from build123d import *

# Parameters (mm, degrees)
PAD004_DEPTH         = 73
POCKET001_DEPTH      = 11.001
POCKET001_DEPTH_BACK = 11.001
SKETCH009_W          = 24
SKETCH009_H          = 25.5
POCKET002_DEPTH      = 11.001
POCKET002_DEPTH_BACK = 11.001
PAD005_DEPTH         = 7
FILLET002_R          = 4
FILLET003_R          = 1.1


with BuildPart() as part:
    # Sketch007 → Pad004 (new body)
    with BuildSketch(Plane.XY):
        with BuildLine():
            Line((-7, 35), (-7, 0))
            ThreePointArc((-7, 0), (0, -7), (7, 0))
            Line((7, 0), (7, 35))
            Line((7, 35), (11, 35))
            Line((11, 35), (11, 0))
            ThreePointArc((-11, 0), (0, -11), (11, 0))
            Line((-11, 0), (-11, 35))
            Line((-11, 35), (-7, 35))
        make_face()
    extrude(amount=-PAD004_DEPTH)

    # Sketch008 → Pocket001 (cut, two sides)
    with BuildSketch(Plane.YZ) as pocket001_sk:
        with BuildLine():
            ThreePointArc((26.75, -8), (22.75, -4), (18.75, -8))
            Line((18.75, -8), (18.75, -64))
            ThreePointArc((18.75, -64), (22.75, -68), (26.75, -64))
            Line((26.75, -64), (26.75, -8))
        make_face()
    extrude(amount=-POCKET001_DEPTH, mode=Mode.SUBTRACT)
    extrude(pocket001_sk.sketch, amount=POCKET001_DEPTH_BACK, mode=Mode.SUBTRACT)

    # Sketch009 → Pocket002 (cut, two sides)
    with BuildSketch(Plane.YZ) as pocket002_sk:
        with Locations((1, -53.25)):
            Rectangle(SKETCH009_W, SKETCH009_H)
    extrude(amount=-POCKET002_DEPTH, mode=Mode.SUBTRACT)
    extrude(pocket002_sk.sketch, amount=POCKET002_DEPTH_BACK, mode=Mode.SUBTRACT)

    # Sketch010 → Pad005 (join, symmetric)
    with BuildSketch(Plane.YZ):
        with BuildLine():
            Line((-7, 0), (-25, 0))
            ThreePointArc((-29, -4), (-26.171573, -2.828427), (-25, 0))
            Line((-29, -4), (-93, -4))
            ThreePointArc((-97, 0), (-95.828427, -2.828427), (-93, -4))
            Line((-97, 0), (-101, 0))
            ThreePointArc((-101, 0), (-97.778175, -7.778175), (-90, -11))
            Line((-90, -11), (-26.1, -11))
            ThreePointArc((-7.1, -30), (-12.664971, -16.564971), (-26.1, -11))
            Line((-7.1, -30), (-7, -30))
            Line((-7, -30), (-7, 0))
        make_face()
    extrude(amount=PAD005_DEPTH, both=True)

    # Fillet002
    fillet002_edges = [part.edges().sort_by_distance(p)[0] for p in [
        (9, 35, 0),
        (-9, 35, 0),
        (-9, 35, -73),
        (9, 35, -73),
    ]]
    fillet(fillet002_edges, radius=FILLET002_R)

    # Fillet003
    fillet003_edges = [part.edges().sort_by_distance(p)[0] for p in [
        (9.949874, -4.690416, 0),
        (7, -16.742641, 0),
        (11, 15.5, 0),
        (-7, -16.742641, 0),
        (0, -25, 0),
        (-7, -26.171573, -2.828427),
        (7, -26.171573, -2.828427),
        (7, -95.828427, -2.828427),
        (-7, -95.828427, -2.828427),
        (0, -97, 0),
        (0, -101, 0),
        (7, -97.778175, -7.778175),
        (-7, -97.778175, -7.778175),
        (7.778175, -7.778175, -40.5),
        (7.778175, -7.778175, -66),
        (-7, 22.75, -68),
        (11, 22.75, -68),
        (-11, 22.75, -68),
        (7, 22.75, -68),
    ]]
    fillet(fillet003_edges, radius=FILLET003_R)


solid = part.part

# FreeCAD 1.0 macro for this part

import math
import FreeCAD as App
import Part
import Sketcher
Q = App.Units.Quantity


def edges_at(feature, points):
    """Names of the edges that pass closest to the given points."""
    edges = feature.Shape.Edges
    near = lambda p: min(range(len(edges)), key=lambda i: edges[i].distToShape(Part.Vertex(*p))[0])
    return sorted({f"Edge{near(p) + 1}" for p in points})

doc = App.newDocument("Part")
body = doc.addObject("PartDesign::Body", "Body")

# Sketch on XY plane
sketch1 = body.newObject("Sketcher::SketchObject", "Sketch")
sketch1.AttachmentSupport = (doc.getObject("XY_Plane"), [""])
sketch1.MapMode = "FlatFace"
sketch1.addGeometry(Part.LineSegment(App.Vector(-7, 0, 0), App.Vector(-7, 35, 0)), False)
sketch1.addGeometry(Part.LineSegment(App.Vector(-7, 35, 0), App.Vector(-11, 35, 0)), False)
sketch1.addGeometry(Part.LineSegment(App.Vector(-11, 35, 0), App.Vector(-11, 0, 0)), False)
sketch1.addGeometry(Part.ArcOfCircle(Part.Circle(App.Vector(0, 0, 0), App.Vector(0, 0, 1), 11), math.radians(180), math.radians(360)), False)
sketch1.addGeometry(Part.LineSegment(App.Vector(11, 0, 0), App.Vector(11, 35, 0)), False)
sketch1.addGeometry(Part.LineSegment(App.Vector(11, 35, 0), App.Vector(7, 35, 0)), False)
sketch1.addGeometry(Part.LineSegment(App.Vector(7, 35, 0), App.Vector(7, 0, 0)), False)
sketch1.addGeometry(Part.ArcOfCircle(Part.Circle(App.Vector(0, 0, 0), App.Vector(0, 0, 1), 7), math.radians(180), math.radians(360)), False)
sketch1.addConstraint(Sketcher.Constraint("Coincident", 0, 2, 1, 1))
sketch1.addConstraint(Sketcher.Constraint("Coincident", 1, 2, 2, 1))
sketch1.addConstraint(Sketcher.Constraint("Tangent", 2, 2, 3, 1))
sketch1.addConstraint(Sketcher.Constraint("Tangent", 3, 2, 4, 1))
sketch1.addConstraint(Sketcher.Constraint("Coincident", 4, 2, 5, 1))
sketch1.addConstraint(Sketcher.Constraint("Coincident", 5, 2, 6, 1))
sketch1.addConstraint(Sketcher.Constraint("Tangent", 6, 2, 7, 2))
sketch1.addConstraint(Sketcher.Constraint("Tangent", 7, 1, 0, 1))
sketch1.addConstraint(Sketcher.Constraint("Vertical", 0))
sketch1.addConstraint(Sketcher.Constraint("Horizontal", 1))
sketch1.addConstraint(Sketcher.Constraint("Vertical", 2))
sketch1.addConstraint(Sketcher.Constraint("Vertical", 4))
sketch1.addConstraint(Sketcher.Constraint("Horizontal", 5))
sketch1.addConstraint(Sketcher.Constraint("Vertical", 6))
sketch1.addConstraint(Sketcher.Constraint("Coincident", 3, 3, -1, 1))
sketch1.addConstraint(Sketcher.Constraint("Coincident", 7, 3, -1, 1))
sketch1.addConstraint(Sketcher.Constraint("Horizontal", 1, 2, 4, 2))
sketch1.addConstraint(Sketcher.Constraint("Radius", 3, Q("11 mm")))
sketch1.addConstraint(Sketcher.Constraint("Radius", 7, Q("7 mm")))
sketch1.addConstraint(Sketcher.Constraint("DistanceY", 0, 1, 0, 2, Q("35 mm")))
pad1 = body.newObject("PartDesign::Pad", "Pad")
pad1.Profile = sketch1
pad1.Length = 73
pad1.Reversed = True

# Sketch on YZ plane
sketch2 = body.newObject("Sketcher::SketchObject", "Sketch001")
sketch2.AttachmentSupport = (doc.getObject("YZ_Plane"), [""])
sketch2.MapMode = "FlatFace"
sketch2.addGeometry(Part.ArcOfCircle(Part.Circle(App.Vector(22.8, -8, 0), App.Vector(0, 0, 1), 4), math.radians(0), math.radians(180)), False)
sketch2.addGeometry(Part.LineSegment(App.Vector(18.8, -8, 0), App.Vector(18.8, -64, 0)), False)
sketch2.addGeometry(Part.ArcOfCircle(Part.Circle(App.Vector(22.8, -64, 0), App.Vector(0, 0, 1), 4), math.radians(180), math.radians(360)), False)
sketch2.addGeometry(Part.LineSegment(App.Vector(26.8, -64, 0), App.Vector(26.8, -8, 0)), False)
sketch2.addConstraint(Sketcher.Constraint("Tangent", 0, 2, 1, 1))
sketch2.addConstraint(Sketcher.Constraint("Tangent", 1, 2, 2, 1))
sketch2.addConstraint(Sketcher.Constraint("Tangent", 2, 2, 3, 1))
sketch2.addConstraint(Sketcher.Constraint("Tangent", 3, 2, 0, 1))
sketch2.addConstraint(Sketcher.Constraint("Vertical", 1))
sketch2.addConstraint(Sketcher.Constraint("Vertical", 3))
sketch2.addConstraint(Sketcher.Constraint("Radius", 0, Q("4 mm")))
sketch2.addConstraint(Sketcher.Constraint("DistanceY", 1, 2, 1, 1, Q("56 mm")))
sketch2.addConstraint(Sketcher.Constraint("DistanceY", 0, 3, -1, 1, Q("8 mm")))
sketch2.addConstraint(Sketcher.Constraint("DistanceX", -1, 1, 0, 3, Q("22.75 mm")))
pocket1 = body.newObject("PartDesign::Pocket", "Pocket")
pocket1.Profile = sketch2
pocket1.Type = "ThroughAll"
pocket1.Midplane = True

# Sketch on YZ plane
sketch3 = body.newObject("Sketcher::SketchObject", "Sketch002")
sketch3.AttachmentSupport = (doc.getObject("YZ_Plane"), [""])
sketch3.MapMode = "FlatFace"
sketch3.addGeometry(Part.LineSegment(App.Vector(-11, -40, 0), App.Vector(-11, -66, 0)), False)
sketch3.addGeometry(Part.LineSegment(App.Vector(-11, -66, 0), App.Vector(13, -66, 0)), False)
sketch3.addGeometry(Part.LineSegment(App.Vector(13, -66, 0), App.Vector(13, -40, 0)), False)
sketch3.addGeometry(Part.LineSegment(App.Vector(13, -40, 0), App.Vector(-11, -40, 0)), False)
sketch3.addConstraint(Sketcher.Constraint("Coincident", 0, 2, 1, 1))
sketch3.addConstraint(Sketcher.Constraint("Coincident", 1, 2, 2, 1))
sketch3.addConstraint(Sketcher.Constraint("Coincident", 2, 2, 3, 1))
sketch3.addConstraint(Sketcher.Constraint("Coincident", 3, 2, 0, 1))
sketch3.addConstraint(Sketcher.Constraint("Vertical", 0))
sketch3.addConstraint(Sketcher.Constraint("Horizontal", 1))
sketch3.addConstraint(Sketcher.Constraint("Vertical", 2))
sketch3.addConstraint(Sketcher.Constraint("Horizontal", 3))
sketch3.addConstraint(Sketcher.Constraint("DistanceX", 1, 1, 1, 2, Q("24 mm")))
sketch3.addConstraint(Sketcher.Constraint("DistanceY", 0, 2, 0, 1, Q("25.5 mm")))
sketch3.addConstraint(Sketcher.Constraint("DistanceX", 0, 2, -1, 1, Q("11 mm")))
sketch3.addConstraint(Sketcher.Constraint("DistanceY", 0, 2, -1, 1, Q("66 mm")))
pocket2 = body.newObject("PartDesign::Pocket", "Pocket001")
pocket2.Profile = sketch3
pocket2.Type = "ThroughAll"
pocket2.Midplane = True

# Sketch on YZ plane
sketch4 = body.newObject("Sketcher::SketchObject", "Sketch003")
sketch4.AttachmentSupport = (doc.getObject("YZ_Plane"), [""])
sketch4.MapMode = "FlatFace"
sketch4.addGeometry(Part.LineSegment(App.Vector(-7, 0, 0), App.Vector(-25, 0, 0)), False)
sketch4.addGeometry(Part.ArcOfCircle(Part.Circle(App.Vector(-29, 0, 0), App.Vector(0, 0, 1), 4), math.radians(-90), math.radians(0)), False)
sketch4.addGeometry(Part.LineSegment(App.Vector(-29, -4, 0), App.Vector(-93, -4, 0)), False)
sketch4.addGeometry(Part.ArcOfCircle(Part.Circle(App.Vector(-93, 0, 0), App.Vector(0, 0, 1), 4), math.radians(-180), math.radians(-90)), False)
sketch4.addGeometry(Part.LineSegment(App.Vector(-97, 0, 0), App.Vector(-101, 0, 0)), False)
sketch4.addGeometry(Part.ArcOfCircle(Part.Circle(App.Vector(-90, 0, 0), App.Vector(0, 0, 1), 11), math.radians(180), math.radians(270)), False)
sketch4.addGeometry(Part.LineSegment(App.Vector(-90, -11, 0), App.Vector(-26.1, -11, 0)), False)
sketch4.addGeometry(Part.ArcOfCircle(Part.Circle(App.Vector(-26.1, -30, 0), App.Vector(0, 0, 1), 19), math.radians(0), math.radians(90)), False)
sketch4.addGeometry(Part.LineSegment(App.Vector(-7.1, -30, 0), App.Vector(-7, -30, 0)), False)
sketch4.addGeometry(Part.LineSegment(App.Vector(-7, -30, 0), App.Vector(-7, 0, 0)), False)
sketch4.addConstraint(Sketcher.Constraint("Coincident", 0, 2, 1, 2))
sketch4.addConstraint(Sketcher.Constraint("Tangent", 1, 1, 2, 1))
sketch4.addConstraint(Sketcher.Constraint("Tangent", 2, 2, 3, 2))
sketch4.addConstraint(Sketcher.Constraint("Coincident", 3, 1, 4, 1))
sketch4.addConstraint(Sketcher.Constraint("Coincident", 4, 2, 5, 1))
sketch4.addConstraint(Sketcher.Constraint("Tangent", 5, 2, 6, 1))
sketch4.addConstraint(Sketcher.Constraint("Tangent", 6, 2, 7, 2))
sketch4.addConstraint(Sketcher.Constraint("Coincident", 7, 1, 8, 1))
sketch4.addConstraint(Sketcher.Constraint("Coincident", 8, 2, 9, 1))
sketch4.addConstraint(Sketcher.Constraint("Coincident", 9, 2, 0, 1))
sketch4.addConstraint(Sketcher.Constraint("Horizontal", 0))
sketch4.addConstraint(Sketcher.Constraint("Horizontal", 2))
sketch4.addConstraint(Sketcher.Constraint("Horizontal", 4))
sketch4.addConstraint(Sketcher.Constraint("Horizontal", 6))
sketch4.addConstraint(Sketcher.Constraint("Horizontal", 8))
sketch4.addConstraint(Sketcher.Constraint("Vertical", 9))
sketch4.addConstraint(Sketcher.Constraint("Equal", 1, 3))
sketch4.addConstraint(Sketcher.Constraint("PointOnObject", 1, 3, -1))
sketch4.addConstraint(Sketcher.Constraint("PointOnObject", 5, 3, -1))
sketch4.addConstraint(Sketcher.Constraint("PointOnObject", 0, 2, -1))
sketch4.addConstraint(Sketcher.Constraint("PointOnObject", 3, 1, -1))
sketch4.addConstraint(Sketcher.Constraint("Radius", 1, Q("4 mm")))
sketch4.addConstraint(Sketcher.Constraint("Radius", 5, Q("10.999999 mm")))
sketch4.addConstraint(Sketcher.Constraint("Radius", 7, Q("18.999999 mm")))
sketch4.addConstraint(Sketcher.Constraint("DistanceX", 0, 2, 0, 1, Q("18 mm")))
sketch4.addConstraint(Sketcher.Constraint("DistanceX", 2, 2, 2, 1, Q("64 mm")))
sketch4.addConstraint(Sketcher.Constraint("DistanceX", 4, 2, 4, 1, Q("4 mm")))
sketch4.addConstraint(Sketcher.Constraint("DistanceY", 9, 1, 9, 2, Q("30 mm")))
sketch4.addConstraint(Sketcher.Constraint("DistanceX", 6, 1, 6, 2, Q("63.9 mm")))
sketch4.addConstraint(Sketcher.Constraint("DistanceX", 1, 3, -1, 1, Q("29 mm")))
pad2 = body.newObject("PartDesign::Pad", "Pad001")
pad2.Profile = sketch4
pad2.Length = 14
pad2.Midplane = True
doc.recompute()

fillet = body.newObject("PartDesign::Fillet", "Fillet")
fillet.Base = (pad2, edges_at(pad2, [
    (9, 35, 0),
    (-9, 35, 0),
    (-9, 35, -73),
    (9, 35, -73),
]))
fillet.Radius = 4
doc.recompute()

fillet2 = body.newObject("PartDesign::Fillet", "Fillet001")
fillet2.Base = (fillet, edges_at(fillet, [
    (9.95, -4.69, 0),
    (7, -16.743, 0),
    (11, 15.5, 0),
    (-7, -16.743, 0),
    (0, -25, 0),
    (-7, -26.172, -2.828),
    (7, -26.172, -2.828),
    (7, -95.828, -2.828),
    (-7, -95.828, -2.828),
    (0, -97, 0),
    (0, -101, 0),
    (7, -97.778, -7.778),
    (-7, -97.778, -7.778),
    (0, -11, -40.5),
    (0, -11, -66),
    (-7, 22.75, -68),
    (11, 22.75, -68),
    (-11, 22.75, -68),
    (7, 22.75, -68),
]))
fillet2.Radius = 1.1

doc.recompute()
